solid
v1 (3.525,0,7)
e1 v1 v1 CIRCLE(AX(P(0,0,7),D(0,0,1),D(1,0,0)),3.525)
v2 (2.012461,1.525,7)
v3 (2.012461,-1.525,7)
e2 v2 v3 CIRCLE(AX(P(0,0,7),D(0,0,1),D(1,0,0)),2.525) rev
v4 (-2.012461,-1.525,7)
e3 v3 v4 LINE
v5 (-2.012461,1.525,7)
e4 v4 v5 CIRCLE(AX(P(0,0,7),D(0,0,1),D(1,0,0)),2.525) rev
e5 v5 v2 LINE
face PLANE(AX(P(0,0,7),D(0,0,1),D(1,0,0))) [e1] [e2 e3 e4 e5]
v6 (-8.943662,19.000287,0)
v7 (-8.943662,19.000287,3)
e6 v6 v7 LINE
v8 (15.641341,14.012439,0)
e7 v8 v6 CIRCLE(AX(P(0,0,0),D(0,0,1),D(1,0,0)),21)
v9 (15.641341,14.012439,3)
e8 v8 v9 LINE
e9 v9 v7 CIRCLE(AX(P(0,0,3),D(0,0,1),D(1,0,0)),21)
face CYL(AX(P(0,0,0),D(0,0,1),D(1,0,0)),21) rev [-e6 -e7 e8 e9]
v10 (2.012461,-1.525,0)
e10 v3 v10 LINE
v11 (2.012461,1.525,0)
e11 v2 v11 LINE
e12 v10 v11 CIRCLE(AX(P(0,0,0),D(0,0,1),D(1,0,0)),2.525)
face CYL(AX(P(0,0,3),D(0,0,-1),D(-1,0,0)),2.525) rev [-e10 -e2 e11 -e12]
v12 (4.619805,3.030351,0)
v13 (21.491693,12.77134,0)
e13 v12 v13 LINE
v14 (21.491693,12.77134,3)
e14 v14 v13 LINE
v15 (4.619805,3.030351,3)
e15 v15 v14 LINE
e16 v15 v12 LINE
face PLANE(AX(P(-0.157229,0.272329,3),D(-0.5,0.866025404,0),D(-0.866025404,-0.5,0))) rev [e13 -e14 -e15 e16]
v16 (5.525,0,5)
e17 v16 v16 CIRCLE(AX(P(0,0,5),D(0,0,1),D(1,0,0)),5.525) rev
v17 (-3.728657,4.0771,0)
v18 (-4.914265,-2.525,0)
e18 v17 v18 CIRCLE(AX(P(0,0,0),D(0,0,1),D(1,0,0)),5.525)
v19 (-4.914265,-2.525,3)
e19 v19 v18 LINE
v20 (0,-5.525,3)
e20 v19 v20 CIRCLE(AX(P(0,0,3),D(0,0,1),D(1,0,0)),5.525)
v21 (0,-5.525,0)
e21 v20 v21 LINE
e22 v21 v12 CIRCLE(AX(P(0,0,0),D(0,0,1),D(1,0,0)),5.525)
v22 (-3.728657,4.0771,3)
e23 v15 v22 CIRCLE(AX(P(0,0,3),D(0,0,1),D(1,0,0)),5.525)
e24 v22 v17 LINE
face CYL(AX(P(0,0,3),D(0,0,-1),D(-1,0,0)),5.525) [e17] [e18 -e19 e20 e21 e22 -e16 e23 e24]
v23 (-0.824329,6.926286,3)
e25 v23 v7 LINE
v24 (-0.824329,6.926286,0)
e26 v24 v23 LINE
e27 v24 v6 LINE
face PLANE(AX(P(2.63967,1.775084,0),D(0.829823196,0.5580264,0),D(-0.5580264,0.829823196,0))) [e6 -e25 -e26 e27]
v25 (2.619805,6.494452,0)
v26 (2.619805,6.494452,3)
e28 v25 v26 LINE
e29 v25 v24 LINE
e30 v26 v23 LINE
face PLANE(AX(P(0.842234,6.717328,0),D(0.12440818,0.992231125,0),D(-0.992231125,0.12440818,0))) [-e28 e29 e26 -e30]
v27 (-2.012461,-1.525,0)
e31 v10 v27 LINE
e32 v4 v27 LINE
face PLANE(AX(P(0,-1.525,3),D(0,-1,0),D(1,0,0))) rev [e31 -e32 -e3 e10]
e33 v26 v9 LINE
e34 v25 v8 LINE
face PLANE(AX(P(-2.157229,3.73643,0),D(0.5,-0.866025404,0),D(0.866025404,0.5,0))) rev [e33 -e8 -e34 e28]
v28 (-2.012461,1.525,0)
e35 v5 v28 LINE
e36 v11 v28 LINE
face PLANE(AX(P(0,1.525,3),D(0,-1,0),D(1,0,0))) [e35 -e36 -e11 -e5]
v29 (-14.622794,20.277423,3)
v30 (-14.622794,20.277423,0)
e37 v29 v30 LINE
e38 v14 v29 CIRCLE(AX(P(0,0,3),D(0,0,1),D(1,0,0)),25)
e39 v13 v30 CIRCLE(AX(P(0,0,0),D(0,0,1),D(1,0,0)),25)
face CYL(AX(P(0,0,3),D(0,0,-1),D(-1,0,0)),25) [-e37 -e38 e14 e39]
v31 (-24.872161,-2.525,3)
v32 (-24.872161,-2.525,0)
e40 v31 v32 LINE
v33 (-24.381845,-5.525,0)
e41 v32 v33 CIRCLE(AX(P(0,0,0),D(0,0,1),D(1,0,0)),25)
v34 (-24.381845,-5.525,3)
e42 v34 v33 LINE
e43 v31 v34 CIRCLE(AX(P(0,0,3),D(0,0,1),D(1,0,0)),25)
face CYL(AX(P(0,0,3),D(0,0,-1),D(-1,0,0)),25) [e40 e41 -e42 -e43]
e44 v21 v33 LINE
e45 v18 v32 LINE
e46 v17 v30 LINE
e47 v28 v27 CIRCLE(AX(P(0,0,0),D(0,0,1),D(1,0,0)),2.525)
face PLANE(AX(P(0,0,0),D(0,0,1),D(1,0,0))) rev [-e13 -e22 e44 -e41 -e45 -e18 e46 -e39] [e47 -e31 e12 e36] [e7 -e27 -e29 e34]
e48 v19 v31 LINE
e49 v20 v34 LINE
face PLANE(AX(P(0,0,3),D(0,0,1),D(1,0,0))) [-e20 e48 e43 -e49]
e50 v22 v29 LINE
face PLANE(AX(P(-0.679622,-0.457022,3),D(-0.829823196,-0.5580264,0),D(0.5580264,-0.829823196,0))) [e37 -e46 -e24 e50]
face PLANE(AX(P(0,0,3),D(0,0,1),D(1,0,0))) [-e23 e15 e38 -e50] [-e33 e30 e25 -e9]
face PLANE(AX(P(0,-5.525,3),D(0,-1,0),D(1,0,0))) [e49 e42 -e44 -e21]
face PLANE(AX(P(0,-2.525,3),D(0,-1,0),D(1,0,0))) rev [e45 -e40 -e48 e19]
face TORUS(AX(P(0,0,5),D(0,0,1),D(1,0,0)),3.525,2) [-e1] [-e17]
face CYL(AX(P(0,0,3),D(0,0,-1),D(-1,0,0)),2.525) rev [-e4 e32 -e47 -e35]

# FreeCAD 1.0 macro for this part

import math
import FreeCAD as App
import Part
import Sketcher
from FreeCAD import Vector
Q = App.Units.Quantity


def edges_at(feature, points):
    """Names of the edges that pass closest to the given points."""
    edges = feature.Shape.Edges
    near = lambda p: min(range(len(edges)), key=lambda i: edges[i].distToShape(Part.Vertex(*p))[0])
    return sorted({f"Edge{near(p) + 1}" for p in points})

doc = App.newDocument("Part")
body = doc.addObject("PartDesign::Body", "Body")

# Sketch on XY plane
sketch1 = body.newObject("Sketcher::SketchObject", "Sketch")
sketch1.AttachmentSupport = (doc.getObject("XY_Plane"), [""])
sketch1.MapMode = "FlatFace"
sketch1.addGeometry(Part.LineSegment(Vector(-4.914265, -2.525, 0), Vector(-24.872161, -2.525, 0)), False)
sketch1.addGeometry(Part.ArcOfCircle(Part.Circle(Vector(0, 0, 0), Vector(0, 0, 1), 25), math.radians(-174.203242), math.radians(-167.232225)), False)
sketch1.addGeometry(Part.LineSegment(Vector(-24.381845, -5.525, 0), Vector(0, -5.525, 0)), False)
sketch1.addGeometry(Part.ArcOfCircle(Part.Circle(Vector(0, 0, 0), Vector(0, 0, 1), 5.525), math.radians(-90), math.radians(0)), False)
sketch1.addGeometry(Part.ArcOfCircle(Part.Circle(Vector(0, 0, 0), Vector(0, 0, 1), 5.525), math.radians(0), math.radians(33.262781)), False)
sketch1.addGeometry(Part.LineSegment(Vector(4.619805, 3.030351, 0), Vector(21.491693, 12.77134, 0)), False)
sketch1.addGeometry(Part.ArcOfCircle(Part.Circle(Vector(0, 0, 0), Vector(0, 0, 1), 25), math.radians(30.720704), math.radians(125.796758)), False)
sketch1.addGeometry(Part.LineSegment(Vector(-14.622794, 20.277423, 0), Vector(-3.728657, 4.0771, 0)), False)
sketch1.addGeometry(Part.ArcOfCircle(Part.Circle(Vector(0, 0, 0), Vector(0, 0, 1), 5.525), math.radians(132.444058), math.radians(207.194566)), False)
sketch1.addGeometry(Part.ArcOfCircle(Part.Circle(Vector(0, 0, 0), Vector(0, 0, 1), 2.525), math.radians(-37.15407), math.radians(0)), False)
sketch1.addGeometry(Part.LineSegment(Vector(2.012461, -1.525, 0), Vector(-2.012461, -1.525, 0)), False)
sketch1.addGeometry(Part.ArcOfCircle(Part.Circle(Vector(0, 0, 0), Vector(0, 0, 1), 2.525), math.radians(142.84593), math.radians(217.15407)), False)
sketch1.addGeometry(Part.LineSegment(Vector(-2.012461, 1.525, 0), Vector(2.012461, 1.525, 0)), False)
sketch1.addGeometry(Part.ArcOfCircle(Part.Circle(Vector(0, 0, 0), Vector(0, 0, 1), 2.525), math.radians(0), math.radians(37.15407)), False)
sketch1.addConstraint(Sketcher.Constraint("Coincident", 0, 2, 1, 1))
sketch1.addConstraint(Sketcher.Constraint("Coincident", 1, 2, 2, 1))
sketch1.addConstraint(Sketcher.Constraint("Tangent", 2, 2, 3, 1))
sketch1.addConstraint(Sketcher.Constraint("Tangent", 3, 2, 4, 1))
sketch1.addConstraint(Sketcher.Constraint("Coincident", 4, 2, 5, 1))
sketch1.addConstraint(Sketcher.Constraint("Coincident", 5, 2, 6, 1))
sketch1.addConstraint(Sketcher.Constraint("Coincident", 6, 2, 7, 1))
sketch1.addConstraint(Sketcher.Constraint("Coincident", 7, 2, 8, 1))
sketch1.addConstraint(Sketcher.Constraint("Coincident", 8, 2, 0, 1))
sketch1.addConstraint(Sketcher.Constraint("Coincident", 9, 1, 10, 1))
sketch1.addConstraint(Sketcher.Constraint("Coincident", 10, 2, 11, 2))
sketch1.addConstraint(Sketcher.Constraint("Coincident", 11, 1, 12, 1))
sketch1.addConstraint(Sketcher.Constraint("Coincident", 12, 2, 13, 2))
sketch1.addConstraint(Sketcher.Constraint("Tangent", 13, 1, 9, 2))
sketch1.addConstraint(Sketcher.Constraint("Horizontal", 0))
sketch1.addConstraint(Sketcher.Constraint("Horizontal", 2))
sketch1.addConstraint(Sketcher.Constraint("Horizontal", 10))
sketch1.addConstraint(Sketcher.Constraint("Horizontal", 12))
sketch1.addConstraint(Sketcher.Constraint("Coincident", 1, 3, -1, 1))
sketch1.addConstraint(Sketcher.Constraint("Coincident", 3, 3, -1, 1))
sketch1.addConstraint(Sketcher.Constraint("Coincident", 6, 3, -1, 1))
sketch1.addConstraint(Sketcher.Constraint("Coincident", 8, 3, -1, 1))
sketch1.addConstraint(Sketcher.Constraint("Coincident", 9, 3, -1, 1))
sketch1.addConstraint(Sketcher.Constraint("Coincident", 11, 3, -1, 1))
sketch1.addConstraint(Sketcher.Constraint("Equal", 3, 4))
sketch1.addConstraint(Sketcher.Constraint("Equal", 1, 6))
sketch1.addConstraint(Sketcher.Constraint("Equal", 4, 8))
sketch1.addConstraint(Sketcher.Constraint("Equal", 9, 11))
sketch1.addConstraint(Sketcher.Constraint("Equal", 11, 13))
sketch1.addConstraint(Sketcher.Constraint("PointOnObject", 3, 2, -1))
sketch1.addConstraint(Sketcher.Constraint("PointOnObject", 13, 1, -1))
sketch1.addConstraint(Sketcher.Constraint("Vertical", 10, 2, 11, 1))
sketch1.addConstraint(Sketcher.Constraint("Radius", 1, Q("25 mm")))
sketch1.addConstraint(Sketcher.Constraint("Angle", 5, Q("30 deg")))
sketch1.addConstraint(Sketcher.Constraint("Radius", 3, Q("5.525 mm")))
sketch1.addConstraint(Sketcher.Constraint("Radius", 9, Q("2.525 mm")))
sketch1.addConstraint(Sketcher.Constraint("DistanceY", 1, 2, 0, 2, Q("3 mm")))
sketch1.addConstraint(Sketcher.Constraint("DistanceY", 9, 1, -1, 1, Q("1.525 mm")))
sketch1.addConstraint(Sketcher.Constraint("DistanceY", -1, 1, 7, 2, Q("4.0771 mm")))
sketch1.addConstraint(Sketcher.Constraint("Distance", 5, Q("19.481978 mm")))
sketch1.addConstraint(Sketcher.Constraint("Distance", 7, Q("19.52262 mm")))
pad1 = body.newObject("PartDesign::Pad", "Pad")
pad1.Profile = sketch1
pad1.Length = 3

# Sketch on XY plane
sketch2 = body.newObject("Sketcher::SketchObject", "Sketch001")
sketch2.AttachmentSupport = (doc.getObject("XY_Plane"), [""])
sketch2.MapMode = "FlatFace"
sketch2.AttachmentOffset = App.Placement(Vector(0, 0, 3), App.Rotation())
sketch2.addGeometry(Part.LineSegment(Vector(-8.943662, 19.000287, 0), Vector(-0.824329, 6.926286, 0)), False)
sketch2.addGeometry(Part.LineSegment(Vector(-0.824329, 6.926286, 0), Vector(2.619805, 6.494452, 0)), False)
sketch2.addGeometry(Part.LineSegment(Vector(2.619805, 6.494452, 0), Vector(15.641341, 14.012439, 0)), False)
sketch2.addGeometry(Part.ArcOfCircle(Part.Circle(Vector(0, 0, 0), Vector(0, 0, 1), 21), math.radians(41.855866), math.radians(115.206927)), False)
sketch2.addConstraint(Sketcher.Constraint("Coincident", 0, 2, 1, 1))
sketch2.addConstraint(Sketcher.Constraint("Coincident", 1, 2, 2, 1))
sketch2.addConstraint(Sketcher.Constraint("Coincident", 2, 2, 3, 1))
sketch2.addConstraint(Sketcher.Constraint("Coincident", 3, 2, 0, 1))
sketch2.addConstraint(Sketcher.Constraint("Coincident", 3, 3, -1, 1))
sketch2.addConstraint(Sketcher.Constraint("Radius", 3, Q("21 mm")))
sketch2.addConstraint(Sketcher.Constraint("Angle", 2, Q("30 deg")))
sketch2.addConstraint(Sketcher.Constraint("DistanceY", 0, 2, 3, 2, Q("12.074001 mm")))
sketch2.addConstraint(Sketcher.Constraint("Distance", 1, Q("3.4711 mm")))
sketch2.addConstraint(Sketcher.Constraint("Distance", 0, Q("14.550089 mm")))
sketch2.addConstraint(Sketcher.Constraint("DistanceX", 0, 2, -1, 1, Q("0.824329 mm")))
sketch2.addConstraint(Sketcher.Constraint("DistanceX", -1, 1, 2, 2, Q("15.641341 mm")))
pocket1 = body.newObject("PartDesign::Pocket", "Pocket")
pocket1.Profile = sketch2
pocket1.Length = 3

# Sketch on XY plane
sketch3 = body.newObject("Sketcher::SketchObject", "Sketch002")
sketch3.AttachmentSupport = (doc.getObject("XY_Plane"), [""])
sketch3.MapMode = "FlatFace"
sketch3.AttachmentOffset = App.Placement(Vector(0, 0, 3), App.Rotation())
sketch3.addGeometry(Part.ArcOfCircle(Part.Circle(Vector(0, 0, 0), Vector(0, 0, 1), 5.525), math.radians(0), math.radians(33.262781)), False)
sketch3.addGeometry(Part.ArcOfCircle(Part.Circle(Vector(0, 0, 0), Vector(0, 0, 1), 5.525), math.radians(33.262781), math.radians(132.444058)), False)
sketch3.addGeometry(Part.ArcOfCircle(Part.Circle(Vector(0, 0, 0), Vector(0, 0, 1), 5.525), math.radians(132.444058), math.radians(207.194566)), False)
sketch3.addGeometry(Part.ArcOfCircle(Part.Circle(Vector(0, 0, 0), Vector(0, 0, 1), 5.525), math.radians(-152.805434), math.radians(-90)), False)
sketch3.addGeometry(Part.ArcOfCircle(Part.Circle(Vector(0, 0, 0), Vector(0, 0, 1), 5.525), math.radians(-90), math.radians(0)), False)
sketch3.addGeometry(Part.ArcOfCircle(Part.Circle(Vector(0, 0, 0), Vector(0, 0, 1), 2.525), math.radians(142.84593), math.radians(217.15407)), False)
sketch3.addGeometry(Part.LineSegment(Vector(-2.012461, 1.525, 0), Vector(2.012461, 1.525, 0)), False)
sketch3.addGeometry(Part.ArcOfCircle(Part.Circle(Vector(0, 0, 0), Vector(0, 0, 1), 2.525), math.radians(-37.15407), math.radians(37.15407)), False)
sketch3.addGeometry(Part.LineSegment(Vector(2.012461, -1.525, 0), Vector(-2.012461, -1.525, 0)), False)
sketch3.addConstraint(Sketcher.Constraint("Tangent", 0, 2, 1, 1))
sketch3.addConstraint(Sketcher.Constraint("Tangent", 1, 2, 2, 1))
sketch3.addConstraint(Sketcher.Constraint("Tangent", 2, 2, 3, 1))
sketch3.addConstraint(Sketcher.Constraint("Tangent", 3, 2, 4, 1))
sketch3.addConstraint(Sketcher.Constraint("Tangent", 4, 2, 0, 1))
sketch3.addConstraint(Sketcher.Constraint("Coincident", 5, 1, 6, 1))
sketch3.addConstraint(Sketcher.Constraint("Coincident", 6, 2, 7, 2))
sketch3.addConstraint(Sketcher.Constraint("Coincident", 7, 1, 8, 1))
sketch3.addConstraint(Sketcher.Constraint("Coincident", 8, 2, 5, 2))
sketch3.addConstraint(Sketcher.Constraint("Horizontal", 6))
sketch3.addConstraint(Sketcher.Constraint("Horizontal", 8))
sketch3.addConstraint(Sketcher.Constraint("Coincident", 0, 3, -1, 1))
sketch3.addConstraint(Sketcher.Constraint("Coincident", 2, 3, -1, 1))
sketch3.addConstraint(Sketcher.Constraint("Coincident", 5, 3, -1, 1))
sketch3.addConstraint(Sketcher.Constraint("Coincident", 7, 3, -1, 1))
sketch3.addConstraint(Sketcher.Constraint("Equal", 5, 7))
sketch3.addConstraint(Sketcher.Constraint("PointOnObject", 3, 2, -2))
sketch3.addConstraint(Sketcher.Constraint("PointOnObject", 4, 2, -1))
sketch3.addConstraint(Sketcher.Constraint("Vertical", 6, 2, 7, 1))
sketch3.addConstraint(Sketcher.Constraint("Radius", 0, Q("5.525 mm")))
sketch3.addConstraint(Sketcher.Constraint("Radius", 5, Q("2.525 mm")))
sketch3.addConstraint(Sketcher.Constraint("DistanceY", 2, 2, -1, 1, Q("2.525 mm")))
sketch3.addConstraint(Sketcher.Constraint("DistanceY", -1, 1, 5, 1, Q("1.525 mm")))
sketch3.addConstraint(Sketcher.Constraint("DistanceY", -1, 1, 1, 2, Q("4.0771 mm")))
sketch3.addConstraint(Sketcher.Constraint("DistanceY", -1, 1, 0, 2, Q("3.030351 mm")))
pad2 = body.newObject("PartDesign::Pad", "Pad001")
pad2.Profile = sketch3
pad2.Length = 4
doc.recompute()

fillet = body.newObject("PartDesign::Fillet", "Fillet")
fillet.Base = (pad2, edges_at(pad2, [(3.907, -3.907, 7)]))
fillet.Radius = 2

doc.recompute()
